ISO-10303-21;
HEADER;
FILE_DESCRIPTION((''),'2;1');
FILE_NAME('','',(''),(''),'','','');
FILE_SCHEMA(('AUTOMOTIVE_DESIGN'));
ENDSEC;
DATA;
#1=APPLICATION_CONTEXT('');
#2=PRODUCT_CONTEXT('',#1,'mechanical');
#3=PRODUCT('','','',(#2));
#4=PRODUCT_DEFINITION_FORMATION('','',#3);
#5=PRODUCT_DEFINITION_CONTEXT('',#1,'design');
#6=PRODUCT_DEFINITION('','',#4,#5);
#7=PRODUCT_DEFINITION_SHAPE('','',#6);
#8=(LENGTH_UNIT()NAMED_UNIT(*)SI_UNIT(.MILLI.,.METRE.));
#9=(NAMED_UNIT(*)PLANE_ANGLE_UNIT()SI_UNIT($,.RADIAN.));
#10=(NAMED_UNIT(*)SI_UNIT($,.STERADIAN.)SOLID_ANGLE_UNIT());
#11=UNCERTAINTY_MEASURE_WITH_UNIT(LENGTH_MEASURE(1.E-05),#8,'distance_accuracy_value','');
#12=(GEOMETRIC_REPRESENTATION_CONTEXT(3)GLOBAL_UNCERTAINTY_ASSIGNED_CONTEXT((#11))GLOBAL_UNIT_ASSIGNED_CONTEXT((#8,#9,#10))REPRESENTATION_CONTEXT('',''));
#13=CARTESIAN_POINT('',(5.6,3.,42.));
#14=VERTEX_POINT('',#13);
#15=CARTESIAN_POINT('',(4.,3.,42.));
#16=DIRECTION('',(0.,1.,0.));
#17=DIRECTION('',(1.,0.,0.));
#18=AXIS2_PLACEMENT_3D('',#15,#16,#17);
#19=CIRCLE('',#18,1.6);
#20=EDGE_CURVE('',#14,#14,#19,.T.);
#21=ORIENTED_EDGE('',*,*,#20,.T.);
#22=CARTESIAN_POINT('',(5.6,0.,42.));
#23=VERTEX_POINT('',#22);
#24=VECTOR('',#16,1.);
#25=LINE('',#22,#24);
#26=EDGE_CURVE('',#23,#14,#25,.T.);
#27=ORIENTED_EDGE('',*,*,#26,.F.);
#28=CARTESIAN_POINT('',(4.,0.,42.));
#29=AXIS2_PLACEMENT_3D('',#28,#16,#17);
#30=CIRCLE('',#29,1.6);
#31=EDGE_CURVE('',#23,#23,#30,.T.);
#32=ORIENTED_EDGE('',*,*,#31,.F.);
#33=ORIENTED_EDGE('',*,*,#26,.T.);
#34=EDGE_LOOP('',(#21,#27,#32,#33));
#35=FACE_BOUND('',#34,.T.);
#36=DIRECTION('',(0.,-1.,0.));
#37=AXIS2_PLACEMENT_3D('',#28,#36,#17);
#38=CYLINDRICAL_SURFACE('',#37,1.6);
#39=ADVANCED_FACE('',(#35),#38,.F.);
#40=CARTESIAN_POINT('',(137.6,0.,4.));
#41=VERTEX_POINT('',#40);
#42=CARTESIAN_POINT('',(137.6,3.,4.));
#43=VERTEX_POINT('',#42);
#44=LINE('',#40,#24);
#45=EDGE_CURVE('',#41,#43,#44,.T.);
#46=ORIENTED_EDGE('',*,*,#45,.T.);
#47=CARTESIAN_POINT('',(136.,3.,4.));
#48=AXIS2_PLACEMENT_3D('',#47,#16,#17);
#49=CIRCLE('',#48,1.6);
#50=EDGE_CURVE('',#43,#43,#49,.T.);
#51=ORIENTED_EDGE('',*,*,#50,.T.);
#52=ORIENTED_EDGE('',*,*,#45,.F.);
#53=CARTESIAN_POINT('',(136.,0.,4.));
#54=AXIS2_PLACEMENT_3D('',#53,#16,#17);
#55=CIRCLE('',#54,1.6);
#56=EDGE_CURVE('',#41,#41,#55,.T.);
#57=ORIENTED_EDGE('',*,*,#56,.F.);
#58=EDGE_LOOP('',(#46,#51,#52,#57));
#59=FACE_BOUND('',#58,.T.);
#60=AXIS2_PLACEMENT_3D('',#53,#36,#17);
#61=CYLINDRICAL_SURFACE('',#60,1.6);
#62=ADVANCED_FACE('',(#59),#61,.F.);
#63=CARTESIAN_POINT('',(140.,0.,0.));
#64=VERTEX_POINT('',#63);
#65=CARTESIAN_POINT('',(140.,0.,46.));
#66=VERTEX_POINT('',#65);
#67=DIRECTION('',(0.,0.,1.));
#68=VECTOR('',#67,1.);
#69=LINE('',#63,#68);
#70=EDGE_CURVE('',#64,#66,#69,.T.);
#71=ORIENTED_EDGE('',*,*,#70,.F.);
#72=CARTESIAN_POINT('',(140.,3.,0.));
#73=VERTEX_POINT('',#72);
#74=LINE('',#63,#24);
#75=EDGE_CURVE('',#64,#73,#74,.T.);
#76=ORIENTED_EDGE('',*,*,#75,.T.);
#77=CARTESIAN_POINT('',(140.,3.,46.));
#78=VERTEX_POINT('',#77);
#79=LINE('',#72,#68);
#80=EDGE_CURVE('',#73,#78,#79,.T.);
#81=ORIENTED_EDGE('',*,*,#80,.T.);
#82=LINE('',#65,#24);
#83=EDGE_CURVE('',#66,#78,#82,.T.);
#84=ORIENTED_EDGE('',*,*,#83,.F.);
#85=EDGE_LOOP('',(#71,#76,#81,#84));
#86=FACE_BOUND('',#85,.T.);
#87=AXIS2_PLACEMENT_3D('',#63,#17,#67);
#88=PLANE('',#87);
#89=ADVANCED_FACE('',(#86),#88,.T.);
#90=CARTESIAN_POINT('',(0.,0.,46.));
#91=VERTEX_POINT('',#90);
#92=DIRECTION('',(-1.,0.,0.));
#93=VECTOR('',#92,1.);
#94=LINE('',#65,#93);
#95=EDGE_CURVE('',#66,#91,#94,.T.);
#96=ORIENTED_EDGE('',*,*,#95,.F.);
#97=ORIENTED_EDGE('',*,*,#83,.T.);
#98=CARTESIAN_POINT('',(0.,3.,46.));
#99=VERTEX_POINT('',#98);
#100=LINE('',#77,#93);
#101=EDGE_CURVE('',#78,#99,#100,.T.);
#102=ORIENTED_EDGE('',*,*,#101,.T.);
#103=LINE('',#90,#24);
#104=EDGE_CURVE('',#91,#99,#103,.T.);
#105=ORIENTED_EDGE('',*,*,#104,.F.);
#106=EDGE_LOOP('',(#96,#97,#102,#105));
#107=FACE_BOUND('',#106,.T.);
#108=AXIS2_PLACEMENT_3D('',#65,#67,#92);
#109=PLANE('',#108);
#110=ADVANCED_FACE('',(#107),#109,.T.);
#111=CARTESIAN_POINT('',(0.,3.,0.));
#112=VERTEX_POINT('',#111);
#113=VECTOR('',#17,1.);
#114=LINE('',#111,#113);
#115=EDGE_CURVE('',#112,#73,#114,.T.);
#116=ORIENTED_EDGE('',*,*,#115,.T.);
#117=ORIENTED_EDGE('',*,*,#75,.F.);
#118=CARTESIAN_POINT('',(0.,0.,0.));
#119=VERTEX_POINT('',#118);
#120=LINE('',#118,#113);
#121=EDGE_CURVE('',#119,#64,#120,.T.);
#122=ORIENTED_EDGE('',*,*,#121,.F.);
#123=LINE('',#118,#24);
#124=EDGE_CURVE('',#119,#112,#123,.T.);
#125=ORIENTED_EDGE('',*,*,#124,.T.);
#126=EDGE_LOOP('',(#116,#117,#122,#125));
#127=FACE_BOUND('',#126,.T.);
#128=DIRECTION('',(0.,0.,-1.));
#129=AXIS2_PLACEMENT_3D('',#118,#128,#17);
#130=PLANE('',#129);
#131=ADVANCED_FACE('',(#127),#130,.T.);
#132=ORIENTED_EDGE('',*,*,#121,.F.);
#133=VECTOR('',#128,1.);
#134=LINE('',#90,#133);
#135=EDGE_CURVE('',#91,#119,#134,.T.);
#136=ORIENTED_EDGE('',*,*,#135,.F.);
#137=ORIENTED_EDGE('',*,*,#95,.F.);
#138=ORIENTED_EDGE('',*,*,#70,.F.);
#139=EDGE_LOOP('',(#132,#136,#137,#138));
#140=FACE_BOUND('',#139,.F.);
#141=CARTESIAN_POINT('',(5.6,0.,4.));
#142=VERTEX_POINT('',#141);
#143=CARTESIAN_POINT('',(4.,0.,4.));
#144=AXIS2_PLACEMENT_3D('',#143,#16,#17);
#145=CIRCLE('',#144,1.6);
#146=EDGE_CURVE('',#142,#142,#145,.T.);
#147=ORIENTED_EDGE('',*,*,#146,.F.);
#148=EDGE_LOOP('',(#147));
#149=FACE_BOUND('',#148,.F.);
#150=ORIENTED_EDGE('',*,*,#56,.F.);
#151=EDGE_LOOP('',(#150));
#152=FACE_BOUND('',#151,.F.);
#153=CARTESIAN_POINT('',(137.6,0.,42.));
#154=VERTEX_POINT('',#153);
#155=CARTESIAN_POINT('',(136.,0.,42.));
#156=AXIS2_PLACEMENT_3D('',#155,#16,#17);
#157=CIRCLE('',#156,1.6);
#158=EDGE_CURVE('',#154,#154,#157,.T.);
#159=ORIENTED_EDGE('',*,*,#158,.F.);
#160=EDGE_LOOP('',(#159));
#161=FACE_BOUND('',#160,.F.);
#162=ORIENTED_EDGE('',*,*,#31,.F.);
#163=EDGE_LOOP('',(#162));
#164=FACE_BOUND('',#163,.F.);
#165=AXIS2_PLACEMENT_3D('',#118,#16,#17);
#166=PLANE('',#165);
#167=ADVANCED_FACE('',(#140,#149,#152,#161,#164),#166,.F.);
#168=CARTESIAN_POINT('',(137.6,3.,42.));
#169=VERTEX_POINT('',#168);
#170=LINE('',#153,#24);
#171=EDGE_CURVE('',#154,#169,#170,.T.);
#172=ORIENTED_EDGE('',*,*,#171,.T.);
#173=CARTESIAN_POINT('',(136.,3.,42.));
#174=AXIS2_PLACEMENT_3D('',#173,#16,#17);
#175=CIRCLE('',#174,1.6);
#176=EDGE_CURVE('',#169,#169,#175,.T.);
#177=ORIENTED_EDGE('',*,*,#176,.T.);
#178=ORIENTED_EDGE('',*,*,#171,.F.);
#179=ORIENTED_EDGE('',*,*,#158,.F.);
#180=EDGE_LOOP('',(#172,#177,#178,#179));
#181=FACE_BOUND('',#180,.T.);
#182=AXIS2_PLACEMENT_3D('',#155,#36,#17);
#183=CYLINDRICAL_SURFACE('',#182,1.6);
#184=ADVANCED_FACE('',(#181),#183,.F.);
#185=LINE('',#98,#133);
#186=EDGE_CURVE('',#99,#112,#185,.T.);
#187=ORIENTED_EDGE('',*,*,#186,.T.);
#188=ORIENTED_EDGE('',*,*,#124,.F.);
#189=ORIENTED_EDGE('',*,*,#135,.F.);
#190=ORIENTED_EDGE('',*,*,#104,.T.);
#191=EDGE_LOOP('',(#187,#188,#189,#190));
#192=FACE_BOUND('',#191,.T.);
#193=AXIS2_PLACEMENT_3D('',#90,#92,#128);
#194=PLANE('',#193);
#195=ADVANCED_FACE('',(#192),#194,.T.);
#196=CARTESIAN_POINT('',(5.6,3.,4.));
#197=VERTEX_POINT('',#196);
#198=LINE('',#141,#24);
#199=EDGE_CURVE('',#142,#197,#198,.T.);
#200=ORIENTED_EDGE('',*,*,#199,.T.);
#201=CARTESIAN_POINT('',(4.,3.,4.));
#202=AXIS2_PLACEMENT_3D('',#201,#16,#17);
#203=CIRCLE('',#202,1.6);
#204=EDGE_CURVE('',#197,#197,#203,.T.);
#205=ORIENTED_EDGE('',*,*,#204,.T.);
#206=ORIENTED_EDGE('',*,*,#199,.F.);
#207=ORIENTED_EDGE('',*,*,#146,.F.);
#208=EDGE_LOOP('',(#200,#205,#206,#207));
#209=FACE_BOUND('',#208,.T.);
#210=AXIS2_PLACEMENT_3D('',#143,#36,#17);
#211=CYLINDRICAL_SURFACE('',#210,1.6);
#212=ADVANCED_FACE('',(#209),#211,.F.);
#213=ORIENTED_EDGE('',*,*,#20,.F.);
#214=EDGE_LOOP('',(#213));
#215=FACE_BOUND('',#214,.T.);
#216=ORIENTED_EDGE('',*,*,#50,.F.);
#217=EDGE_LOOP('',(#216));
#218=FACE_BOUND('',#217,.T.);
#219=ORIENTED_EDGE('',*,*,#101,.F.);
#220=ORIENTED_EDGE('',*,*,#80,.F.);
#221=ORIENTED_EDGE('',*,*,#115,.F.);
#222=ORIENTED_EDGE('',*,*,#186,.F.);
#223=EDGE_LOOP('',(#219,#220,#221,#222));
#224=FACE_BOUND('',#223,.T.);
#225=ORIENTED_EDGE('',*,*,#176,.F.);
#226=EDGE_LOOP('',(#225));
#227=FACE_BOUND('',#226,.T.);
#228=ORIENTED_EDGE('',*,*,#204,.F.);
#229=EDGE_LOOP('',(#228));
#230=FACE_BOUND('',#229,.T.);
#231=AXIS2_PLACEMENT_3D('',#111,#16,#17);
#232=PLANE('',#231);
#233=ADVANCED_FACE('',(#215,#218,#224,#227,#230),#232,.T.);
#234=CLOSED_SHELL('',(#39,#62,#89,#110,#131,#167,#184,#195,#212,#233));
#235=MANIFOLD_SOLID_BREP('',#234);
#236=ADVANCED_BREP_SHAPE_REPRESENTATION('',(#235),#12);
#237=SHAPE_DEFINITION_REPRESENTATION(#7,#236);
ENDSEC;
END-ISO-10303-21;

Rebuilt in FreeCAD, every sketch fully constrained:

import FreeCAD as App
import Part
import Sketcher
from FreeCAD import Vector
Q = App.Units.Quantity

doc = App.newDocument("Part")
body = doc.addObject("PartDesign::Body", "Body")

# Sketch on XZ plane
sketch1 = doc.addObject("Sketcher::SketchObject", "Sketch")
body.addObject(sketch1)
sketch1.AttachmentSupport = (doc.XZ_Plane, [""])
sketch1.MapMode = "FlatFace"
sketch1.addGeometry(Part.LineSegment(Vector(140, 0, 0), Vector(0, 0, 0)), False)
sketch1.addGeometry(Part.LineSegment(Vector(0, 0, 0), Vector(0, 46, 0)), False)
sketch1.addGeometry(Part.LineSegment(Vector(0, 46, 0), Vector(140, 46, 0)), False)
sketch1.addGeometry(Part.LineSegment(Vector(140, 46, 0), Vector(140, 0, 0)), False)
sketch1.addGeometry(Part.Circle(Vector(4, 42, 0), Vector(0, 0, 1), 1.6), False)
sketch1.addGeometry(Part.Circle(Vector(136, 42, 0), Vector(0, 0, 1), 1.6), False)
sketch1.addGeometry(Part.Circle(Vector(4, 4, 0), Vector(0, 0, 1), 1.6), False)
sketch1.addGeometry(Part.Circle(Vector(136, 4, 0), Vector(0, 0, 1), 1.6), False)
sketch1.addConstraint(Sketcher.Constraint("Coincident", 0, 2, 1, 1))
sketch1.addConstraint(Sketcher.Constraint("Coincident", 1, 2, 2, 1))
sketch1.addConstraint(Sketcher.Constraint("Coincident", 2, 2, 3, 1))
sketch1.addConstraint(Sketcher.Constraint("Coincident", 3, 2, 0, 1))
sketch1.addConstraint(Sketcher.Constraint("Horizontal", 0))
sketch1.addConstraint(Sketcher.Constraint("Vertical", 1))
sketch1.addConstraint(Sketcher.Constraint("Horizontal", 2))
sketch1.addConstraint(Sketcher.Constraint("Vertical", 3))
sketch1.addConstraint(Sketcher.Constraint("Coincident", 0, 2, -1, 1))
sketch1.addConstraint(Sketcher.Constraint("Equal", 4, 5))
sketch1.addConstraint(Sketcher.Constraint("Equal", 5, 6))
sketch1.addConstraint(Sketcher.Constraint("Equal", 6, 7))
sketch1.addConstraint(Sketcher.Constraint("Horizontal", 4, 3, 5, 3))
sketch1.addConstraint(Sketcher.Constraint("Horizontal", 6, 3, 7, 3))
sketch1.addConstraint(Sketcher.Constraint("Vertical", 4, 3, 6, 3))
sketch1.addConstraint(Sketcher.Constraint("Vertical", 5, 3, 7, 3))
sketch1.addConstraint(Sketcher.Constraint("Diameter", 4, Q("3.2 mm")))
sketch1.addConstraint(Sketcher.Constraint("DistanceX", 0, 2, 0, 1, Q("140 mm")))
sketch1.addConstraint(Sketcher.Constraint("DistanceY", 1, 1, 1, 2, Q("46 mm")))
sketch1.addConstraint(Sketcher.Constraint("DistanceX", -1, 1, 4, 3, Q("4 mm")))
sketch1.addConstraint(Sketcher.Constraint("DistanceY", -1, 1, 6, 3, Q("4 mm")))
sketch1.addConstraint(Sketcher.Constraint("DistanceX", 4, 3, 5, 3, Q("132 mm")))
sketch1.addConstraint(Sketcher.Constraint("DistanceY", 6, 3, 4, 3, Q("38 mm")))
pad1 = doc.addObject("PartDesign::Pad", "Pad")
body.addObject(pad1)
pad1.Profile = sketch1
pad1.Length = 3
pad1.Reversed = True

doc.recompute()
